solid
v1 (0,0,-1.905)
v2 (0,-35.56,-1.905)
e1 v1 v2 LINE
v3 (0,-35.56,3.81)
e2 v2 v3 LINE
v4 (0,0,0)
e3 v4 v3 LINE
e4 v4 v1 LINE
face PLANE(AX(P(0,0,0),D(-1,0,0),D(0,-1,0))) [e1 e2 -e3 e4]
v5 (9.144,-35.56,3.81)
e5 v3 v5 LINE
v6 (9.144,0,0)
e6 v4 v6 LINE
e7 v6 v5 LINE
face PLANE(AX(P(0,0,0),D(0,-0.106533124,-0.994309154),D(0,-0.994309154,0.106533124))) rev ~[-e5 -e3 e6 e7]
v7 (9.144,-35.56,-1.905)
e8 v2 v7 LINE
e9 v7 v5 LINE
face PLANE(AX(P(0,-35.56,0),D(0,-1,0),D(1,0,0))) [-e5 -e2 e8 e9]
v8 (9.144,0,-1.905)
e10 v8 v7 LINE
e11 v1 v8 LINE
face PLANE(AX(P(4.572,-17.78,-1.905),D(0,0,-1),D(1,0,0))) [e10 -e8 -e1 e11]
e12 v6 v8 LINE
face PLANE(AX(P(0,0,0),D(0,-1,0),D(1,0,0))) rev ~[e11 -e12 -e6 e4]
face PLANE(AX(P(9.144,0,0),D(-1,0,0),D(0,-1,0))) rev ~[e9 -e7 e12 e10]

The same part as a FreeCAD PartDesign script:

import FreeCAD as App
import Part
import Sketcher
Q = App.Units.Quantity

doc = App.newDocument("Part")
body = doc.addObject("PartDesign::Body", "Body")

sketch1 = doc.addObject("Sketcher::SketchObject", "Sketch")
body.addObject(sketch1)
sketch1.AttachmentSupport = (doc.YZ_Plane, [""])
sketch1.MapMode = "FlatFace"
sketch1.addGeometry([
    Part.LineSegment(App.Vector(-35.6, 0, 0), App.Vector(0, 0, 0)),
    Part.LineSegment(App.Vector(0, 0, 0), App.Vector(-35.6, 3.8, 0)),
    Part.LineSegment(App.Vector(-35.6, 3.8, 0), App.Vector(-35.6, 0, 0)),
], False)
sketch1.addConstraint([
    Sketcher.Constraint("Coincident", 0, 2, 1, 1),
    Sketcher.Constraint("Coincident", 1, 2, 2, 1),
    Sketcher.Constraint("Coincident", 2, 2, 0, 1),
    Sketcher.Constraint("Horizontal", 0),
    Sketcher.Constraint("Vertical", 2),
    Sketcher.Constraint("Coincident", 0, 2, -1, 1),
    Sketcher.Constraint("DistanceX", 0, 1, 0, 2, Q("1.4 in")),
    Sketcher.Constraint("DistanceY", 2, 2, 2, 1, Q("0.15 in")),
])
pad1 = doc.addObject("PartDesign::Pad", "Pad")
body.addObject(pad1)
pad1.Profile = sketch1
pad1.Length = Q("0.36 in")

sketch2 = doc.addObject("Sketcher::SketchObject", "Sketch001")
body.addObject(sketch2)
sketch2.AttachmentSupport = (doc.XY_Plane, [""])
sketch2.MapMode = "FlatFace"
sketch2.addGeometry([
    Part.LineSegment(App.Vector(0, -36, 0), App.Vector(0, 0, 0)),
    Part.LineSegment(App.Vector(0, 0, 0), App.Vector(9, 0, 0)),
    Part.LineSegment(App.Vector(9, 0, 0), App.Vector(9, -36, 0)),
    Part.LineSegment(App.Vector(9, -36, 0), App.Vector(0, -36, 0)),
], False)
sketch2.addConstraint([
    Sketcher.Constraint("Coincident", 0, 2, 1, 1),
    Sketcher.Constraint("Coincident", 1, 2, 2, 1),
    Sketcher.Constraint("Coincident", 2, 2, 3, 1),
    Sketcher.Constraint("Coincident", 3, 2, 0, 1),
    Sketcher.Constraint("Vertical", 0),
    Sketcher.Constraint("Horizontal", 1),
    Sketcher.Constraint("Vertical", 2),
    Sketcher.Constraint("Horizontal", 3),
    Sketcher.Constraint("Coincident", 0, 2, -1, 1),
    Sketcher.Constraint("DistanceY", 0, 1, 0, 2, Q("1.4 in")),
    Sketcher.Constraint("DistanceX", 1, 1, 1, 2, Q("0.36 in")),
])
pad2 = doc.addObject("PartDesign::Pad", "Pad001")
body.addObject(pad2)
pad2.Profile = sketch2
pad2.Length = Q("0.075 in")
pad2.Reversed = True

doc.recompute()
